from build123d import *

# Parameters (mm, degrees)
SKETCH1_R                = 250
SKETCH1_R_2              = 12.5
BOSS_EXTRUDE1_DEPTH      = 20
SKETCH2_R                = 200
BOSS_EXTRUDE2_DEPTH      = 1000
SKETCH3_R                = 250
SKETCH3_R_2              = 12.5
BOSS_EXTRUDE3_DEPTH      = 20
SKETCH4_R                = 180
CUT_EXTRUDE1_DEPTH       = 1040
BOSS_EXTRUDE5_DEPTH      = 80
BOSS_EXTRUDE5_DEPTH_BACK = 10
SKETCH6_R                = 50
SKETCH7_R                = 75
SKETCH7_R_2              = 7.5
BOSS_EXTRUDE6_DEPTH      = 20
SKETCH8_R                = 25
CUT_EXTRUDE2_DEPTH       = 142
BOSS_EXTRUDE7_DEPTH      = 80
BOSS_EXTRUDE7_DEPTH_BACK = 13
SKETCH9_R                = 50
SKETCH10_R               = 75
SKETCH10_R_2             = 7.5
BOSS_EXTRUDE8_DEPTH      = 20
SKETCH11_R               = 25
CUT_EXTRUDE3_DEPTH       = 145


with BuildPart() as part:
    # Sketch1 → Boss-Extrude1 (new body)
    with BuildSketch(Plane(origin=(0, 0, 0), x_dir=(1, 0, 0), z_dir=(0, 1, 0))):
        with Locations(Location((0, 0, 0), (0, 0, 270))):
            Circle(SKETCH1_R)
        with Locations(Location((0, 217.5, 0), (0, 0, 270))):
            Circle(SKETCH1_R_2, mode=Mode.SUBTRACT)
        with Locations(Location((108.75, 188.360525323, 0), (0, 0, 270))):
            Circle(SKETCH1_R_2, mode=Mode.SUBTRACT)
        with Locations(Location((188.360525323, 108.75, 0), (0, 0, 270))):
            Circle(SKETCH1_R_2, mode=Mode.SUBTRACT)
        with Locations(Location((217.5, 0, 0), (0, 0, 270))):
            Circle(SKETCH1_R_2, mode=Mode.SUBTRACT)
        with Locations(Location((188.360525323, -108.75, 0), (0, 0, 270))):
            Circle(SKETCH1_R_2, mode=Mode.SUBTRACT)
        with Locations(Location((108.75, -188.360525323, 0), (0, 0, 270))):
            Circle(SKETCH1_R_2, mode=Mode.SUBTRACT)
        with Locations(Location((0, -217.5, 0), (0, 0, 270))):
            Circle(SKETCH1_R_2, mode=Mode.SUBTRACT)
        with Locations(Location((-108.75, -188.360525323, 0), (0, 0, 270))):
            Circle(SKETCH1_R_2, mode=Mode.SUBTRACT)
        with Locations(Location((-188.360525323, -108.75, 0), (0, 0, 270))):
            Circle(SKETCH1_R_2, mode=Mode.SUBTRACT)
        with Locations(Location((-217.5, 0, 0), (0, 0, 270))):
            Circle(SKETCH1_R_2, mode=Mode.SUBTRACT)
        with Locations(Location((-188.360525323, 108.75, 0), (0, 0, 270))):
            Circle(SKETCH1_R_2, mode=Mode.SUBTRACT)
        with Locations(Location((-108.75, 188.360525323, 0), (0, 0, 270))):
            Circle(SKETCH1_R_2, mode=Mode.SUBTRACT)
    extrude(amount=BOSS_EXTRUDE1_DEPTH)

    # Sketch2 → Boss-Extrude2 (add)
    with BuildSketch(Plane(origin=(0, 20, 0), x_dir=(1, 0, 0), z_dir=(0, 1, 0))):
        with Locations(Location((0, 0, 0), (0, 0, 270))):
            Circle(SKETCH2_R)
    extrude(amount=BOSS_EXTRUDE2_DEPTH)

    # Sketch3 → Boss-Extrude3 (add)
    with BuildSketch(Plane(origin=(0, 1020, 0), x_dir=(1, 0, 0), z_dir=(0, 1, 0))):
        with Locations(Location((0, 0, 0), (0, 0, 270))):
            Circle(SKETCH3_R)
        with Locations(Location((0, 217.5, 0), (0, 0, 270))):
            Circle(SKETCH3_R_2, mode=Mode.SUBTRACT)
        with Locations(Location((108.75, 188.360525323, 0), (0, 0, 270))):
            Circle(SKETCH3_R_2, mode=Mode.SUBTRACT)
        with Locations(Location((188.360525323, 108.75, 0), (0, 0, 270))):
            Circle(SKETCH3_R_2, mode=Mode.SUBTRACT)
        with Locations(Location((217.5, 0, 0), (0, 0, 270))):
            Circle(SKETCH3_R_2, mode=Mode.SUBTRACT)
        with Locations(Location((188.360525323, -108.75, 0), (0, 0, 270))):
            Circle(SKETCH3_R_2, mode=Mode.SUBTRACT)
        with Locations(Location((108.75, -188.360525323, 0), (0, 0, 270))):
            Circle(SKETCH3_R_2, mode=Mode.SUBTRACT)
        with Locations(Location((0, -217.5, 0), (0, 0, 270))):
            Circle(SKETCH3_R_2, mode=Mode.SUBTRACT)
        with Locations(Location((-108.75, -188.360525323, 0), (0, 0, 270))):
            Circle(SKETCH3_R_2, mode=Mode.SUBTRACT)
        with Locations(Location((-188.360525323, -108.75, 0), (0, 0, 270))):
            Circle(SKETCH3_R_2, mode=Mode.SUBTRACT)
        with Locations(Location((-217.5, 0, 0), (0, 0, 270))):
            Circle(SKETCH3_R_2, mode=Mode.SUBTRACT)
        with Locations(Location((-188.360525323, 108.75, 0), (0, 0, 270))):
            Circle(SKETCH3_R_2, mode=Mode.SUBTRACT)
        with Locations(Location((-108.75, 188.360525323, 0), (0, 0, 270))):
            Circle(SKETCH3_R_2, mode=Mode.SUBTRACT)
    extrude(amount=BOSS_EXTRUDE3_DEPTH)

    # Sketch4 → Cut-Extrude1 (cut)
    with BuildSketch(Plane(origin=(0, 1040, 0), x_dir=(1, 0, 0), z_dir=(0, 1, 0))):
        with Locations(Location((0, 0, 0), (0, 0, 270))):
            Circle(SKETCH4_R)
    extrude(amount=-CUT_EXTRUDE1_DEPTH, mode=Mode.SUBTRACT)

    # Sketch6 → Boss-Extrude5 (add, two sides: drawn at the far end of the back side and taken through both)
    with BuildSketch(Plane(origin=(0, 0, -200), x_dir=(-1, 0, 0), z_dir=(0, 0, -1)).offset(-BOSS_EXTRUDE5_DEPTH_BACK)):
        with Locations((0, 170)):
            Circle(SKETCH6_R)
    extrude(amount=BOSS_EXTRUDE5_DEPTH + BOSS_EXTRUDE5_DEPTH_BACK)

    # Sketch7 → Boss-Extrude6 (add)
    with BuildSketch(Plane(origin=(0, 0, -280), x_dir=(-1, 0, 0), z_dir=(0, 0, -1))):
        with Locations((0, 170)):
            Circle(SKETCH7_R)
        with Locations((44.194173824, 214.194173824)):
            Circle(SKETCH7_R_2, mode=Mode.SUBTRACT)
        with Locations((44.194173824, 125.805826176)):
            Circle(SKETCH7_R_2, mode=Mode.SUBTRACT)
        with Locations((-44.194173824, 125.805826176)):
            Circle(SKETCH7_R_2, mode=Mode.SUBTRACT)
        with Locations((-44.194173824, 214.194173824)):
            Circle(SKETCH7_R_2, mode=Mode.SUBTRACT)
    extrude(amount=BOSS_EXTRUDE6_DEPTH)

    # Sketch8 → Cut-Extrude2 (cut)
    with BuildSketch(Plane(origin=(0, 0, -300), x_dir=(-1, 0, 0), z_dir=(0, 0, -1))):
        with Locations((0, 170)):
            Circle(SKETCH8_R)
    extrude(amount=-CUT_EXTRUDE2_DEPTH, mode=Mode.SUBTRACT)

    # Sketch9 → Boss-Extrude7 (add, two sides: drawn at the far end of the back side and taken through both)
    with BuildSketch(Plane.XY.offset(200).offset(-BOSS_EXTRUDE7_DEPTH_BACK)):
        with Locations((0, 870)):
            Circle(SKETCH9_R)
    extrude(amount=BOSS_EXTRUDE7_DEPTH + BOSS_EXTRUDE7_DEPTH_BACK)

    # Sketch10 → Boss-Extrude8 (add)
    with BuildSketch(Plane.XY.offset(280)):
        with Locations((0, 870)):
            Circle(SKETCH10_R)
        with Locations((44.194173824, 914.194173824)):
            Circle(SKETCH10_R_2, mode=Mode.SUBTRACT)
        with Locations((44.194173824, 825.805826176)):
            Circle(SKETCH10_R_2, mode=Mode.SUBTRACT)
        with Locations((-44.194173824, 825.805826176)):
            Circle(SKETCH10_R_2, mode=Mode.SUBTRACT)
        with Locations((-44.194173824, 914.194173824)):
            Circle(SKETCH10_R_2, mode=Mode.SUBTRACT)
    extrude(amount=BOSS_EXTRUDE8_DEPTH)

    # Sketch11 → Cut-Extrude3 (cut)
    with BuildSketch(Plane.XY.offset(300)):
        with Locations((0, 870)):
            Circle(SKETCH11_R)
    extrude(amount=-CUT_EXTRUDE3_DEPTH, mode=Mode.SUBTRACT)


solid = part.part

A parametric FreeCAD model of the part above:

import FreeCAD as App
import Part
import Sketcher
from FreeCAD import Vector
Q = App.Units.Quantity

doc = App.newDocument("Part")
body = doc.addObject("PartDesign::Body", "Body")

sketch1 = body.newObject("Sketcher::SketchObject", "Sketch")
sketch1.AttachmentSupport = (doc.getObject("XZ_Plane"), [""])
sketch1.MapMode = "FlatFace"
sketch1.addGeometry(Part.Circle(Vector(0, 0, 0), Vector(0, 0, 1), 250), False)
sketch1.addGeometry(Part.Circle(Vector(-188.360525, -108.75, 0), Vector(0, 0, 1), 12.5), False)
sketch1.addGeometry(Part.Circle(Vector(-108.75, -188.360525, 0), Vector(0, 0, 1), 12.5), False)
sketch1.addGeometry(Part.Circle(Vector(0, -217.5, 0), Vector(0, 0, 1), 12.5), False)
sketch1.addGeometry(Part.Circle(Vector(-217.5, 0, 0), Vector(0, 0, 1), 12.5), False)
sketch1.addGeometry(Part.Circle(Vector(-188.360525, 108.75, 0), Vector(0, 0, 1), 12.5), False)
sketch1.addGeometry(Part.Circle(Vector(-108.75, 188.360525, 0), Vector(0, 0, 1), 12.5), False)
sketch1.addGeometry(Part.Circle(Vector(108.75, -188.360525, 0), Vector(0, 0, 1), 12.5), False)
sketch1.addGeometry(Part.Circle(Vector(188.360525, -108.75, 0), Vector(0, 0, 1), 12.5), False)
sketch1.addGeometry(Part.Circle(Vector(217.5, 0, 0), Vector(0, 0, 1), 12.5), False)
sketch1.addGeometry(Part.Circle(Vector(0, 217.5, 0), Vector(0, 0, 1), 12.5), False)
sketch1.addGeometry(Part.Circle(Vector(108.75, 188.360525, 0), Vector(0, 0, 1), 12.5), False)
sketch1.addGeometry(Part.Circle(Vector(188.360525, 108.75, 0), Vector(0, 0, 1), 12.5), False)
sketch1.addConstraint(Sketcher.Constraint("Coincident", 0, 3, -1, 1))
sketch1.addConstraint(Sketcher.Constraint("Equal", 1, 2))
sketch1.addConstraint(Sketcher.Constraint("Equal", 2, 3))
sketch1.addConstraint(Sketcher.Constraint("Equal", 3, 4))
sketch1.addConstraint(Sketcher.Constraint("Equal", 4, 5))
sketch1.addConstraint(Sketcher.Constraint("Equal", 5, 6))
sketch1.addConstraint(Sketcher.Constraint("Equal", 6, 7))
sketch1.addConstraint(Sketcher.Constraint("Equal", 7, 8))
sketch1.addConstraint(Sketcher.Constraint("Equal", 8, 9))
sketch1.addConstraint(Sketcher.Constraint("Equal", 9, 10))
sketch1.addConstraint(Sketcher.Constraint("Equal", 10, 11))
sketch1.addConstraint(Sketcher.Constraint("Equal", 11, 12))
sketch1.addConstraint(Sketcher.Constraint("Symmetric", 6, 3, 7, 3, -1, 1))
sketch1.addConstraint(Sketcher.Constraint("Symmetric", 5, 3, 8, 3, -1, 1))
sketch1.addConstraint(Sketcher.Constraint("Symmetric", 4, 3, 9, 3, -1, 1))
sketch1.addConstraint(Sketcher.Constraint("Symmetric", 3, 3, 10, 3, -1, 1))
sketch1.addConstraint(Sketcher.Constraint("Symmetric", 2, 3, 11, 3, -1, 1))
sketch1.addConstraint(Sketcher.Constraint("Symmetric", 1, 3, 12, 3, -1, 1))
sketch1.addConstraint(Sketcher.Constraint("Symmetric", 2, 3, 7, 3, -2))
sketch1.addConstraint(Sketcher.Constraint("Symmetric", 1, 3, 8, 3, -2))
sketch1.addConstraint(Sketcher.Constraint("PointOnObject", 3, 3, -2))
sketch1.addConstraint(Sketcher.Constraint("PointOnObject", 4, 3, -1))
sketch1.addConstraint(Sketcher.Constraint("Diameter", 0, Q("500 mm")))
sketch1.addConstraint(Sketcher.Constraint("Diameter", 1, Q("25 mm")))
sketch1.addConstraint(Sketcher.Constraint("DistanceY", 3, 3, -1, 1, Q("217.5 mm")))
sketch1.addConstraint(Sketcher.Constraint("DistanceX", 4, 3, -1, 1, Q("217.5 mm")))
sketch1.addConstraint(Sketcher.Constraint("DistanceY", 1, 3, 5, 3, Q("217.5 mm")))
sketch1.addConstraint(Sketcher.Constraint("DistanceX", 2, 3, 7, 3, Q("217.5 mm")))
sketch1.addConstraint(Sketcher.Constraint("DistanceY", 2, 3, 6, 3, Q("376.721051 mm")))
sketch1.addConstraint(Sketcher.Constraint("DistanceX", 1, 3, 8, 3, Q("376.721051 mm")))
pad1 = body.newObject("PartDesign::Pad", "Pad")
pad1.Profile = sketch1
pad1.Length = 20
pad1.Reversed = True

sketch2 = body.newObject("Sketcher::SketchObject", "Sketch001")
sketch2.AttachmentSupport = (doc.getObject("XZ_Plane"), [""])
sketch2.MapMode = "FlatFace"
sketch2.AttachmentOffset = App.Placement(Vector(0, 0, -20), App.Rotation())
sketch2.addGeometry(Part.Circle(Vector(0, 0, 0), Vector(0, 0, 1), 200), False)
sketch2.addConstraint(Sketcher.Constraint("Coincident", 0, 3, -1, 1))
sketch2.addConstraint(Sketcher.Constraint("Diameter", 0, Q("400 mm")))
pad2 = body.newObject("PartDesign::Pad", "Pad001")
pad2.Profile = sketch2
pad2.Length = 1000
pad2.Reversed = True

sketch3 = body.newObject("Sketcher::SketchObject", "Sketch002")
sketch3.AttachmentSupport = (doc.getObject("XZ_Plane"), [""])
sketch3.MapMode = "FlatFace"
sketch3.AttachmentOffset = App.Placement(Vector(0, 0, -1020), App.Rotation())
sketch3.addGeometry(Part.Circle(Vector(0, 0, 0), Vector(0, 0, 1), 250), False)
sketch3.addGeometry(Part.Circle(Vector(-188.360525, -108.75, 0), Vector(0, 0, 1), 12.5), False)
sketch3.addGeometry(Part.Circle(Vector(-108.75, -188.360525, 0), Vector(0, 0, 1), 12.5), False)
sketch3.addGeometry(Part.Circle(Vector(0, -217.5, 0), Vector(0, 0, 1), 12.5), False)
sketch3.addGeometry(Part.Circle(Vector(-217.5, 0, 0), Vector(0, 0, 1), 12.5), False)
sketch3.addGeometry(Part.Circle(Vector(-188.360525, 108.75, 0), Vector(0, 0, 1), 12.5), False)
sketch3.addGeometry(Part.Circle(Vector(-108.75, 188.360525, 0), Vector(0, 0, 1), 12.5), False)
sketch3.addGeometry(Part.Circle(Vector(108.75, -188.360525, 0), Vector(0, 0, 1), 12.5), False)
sketch3.addGeometry(Part.Circle(Vector(188.360525, -108.75, 0), Vector(0, 0, 1), 12.5), False)
sketch3.addGeometry(Part.Circle(Vector(217.5, 0, 0), Vector(0, 0, 1), 12.5), False)
sketch3.addGeometry(Part.Circle(Vector(0, 217.5, 0), Vector(0, 0, 1), 12.5), False)
sketch3.addGeometry(Part.Circle(Vector(108.75, 188.360525, 0), Vector(0, 0, 1), 12.5), False)
sketch3.addGeometry(Part.Circle(Vector(188.360525, 108.75, 0), Vector(0, 0, 1), 12.5), False)
sketch3.addConstraint(Sketcher.Constraint("Coincident", 0, 3, -1, 1))
sketch3.addConstraint(Sketcher.Constraint("Equal", 1, 2))
sketch3.addConstraint(Sketcher.Constraint("Equal", 2, 3))
sketch3.addConstraint(Sketcher.Constraint("Equal", 3, 4))
sketch3.addConstraint(Sketcher.Constraint("Equal", 4, 5))
sketch3.addConstraint(Sketcher.Constraint("Equal", 5, 6))
sketch3.addConstraint(Sketcher.Constraint("Equal", 6, 7))
sketch3.addConstraint(Sketcher.Constraint("Equal", 7, 8))
sketch3.addConstraint(Sketcher.Constraint("Equal", 8, 9))
sketch3.addConstraint(Sketcher.Constraint("Equal", 9, 10))
sketch3.addConstraint(Sketcher.Constraint("Equal", 10, 11))
sketch3.addConstraint(Sketcher.Constraint("Equal", 11, 12))
sketch3.addConstraint(Sketcher.Constraint("Symmetric", 6, 3, 7, 3, -1, 1))
sketch3.addConstraint(Sketcher.Constraint("Symmetric", 5, 3, 8, 3, -1, 1))
sketch3.addConstraint(Sketcher.Constraint("Symmetric", 4, 3, 9, 3, -1, 1))
sketch3.addConstraint(Sketcher.Constraint("Symmetric", 3, 3, 10, 3, -1, 1))
sketch3.addConstraint(Sketcher.Constraint("Symmetric", 2, 3, 11, 3, -1, 1))
sketch3.addConstraint(Sketcher.Constraint("Symmetric", 1, 3, 12, 3, -1, 1))
sketch3.addConstraint(Sketcher.Constraint("Symmetric", 2, 3, 7, 3, -2))
sketch3.addConstraint(Sketcher.Constraint("Symmetric", 1, 3, 8, 3, -2))
sketch3.addConstraint(Sketcher.Constraint("PointOnObject", 3, 3, -2))
sketch3.addConstraint(Sketcher.Constraint("PointOnObject", 4, 3, -1))
sketch3.addConstraint(Sketcher.Constraint("Diameter", 0, Q("500 mm")))
sketch3.addConstraint(Sketcher.Constraint("Diameter", 1, Q("25 mm")))
sketch3.addConstraint(Sketcher.Constraint("DistanceY", 3, 3, -1, 1, Q("217.5 mm")))
sketch3.addConstraint(Sketcher.Constraint("DistanceX", 4, 3, -1, 1, Q("217.5 mm")))
sketch3.addConstraint(Sketcher.Constraint("DistanceY", 1, 3, 5, 3, Q("217.5 mm")))
sketch3.addConstraint(Sketcher.Constraint("DistanceX", 2, 3, 7, 3, Q("217.5 mm")))
sketch3.addConstraint(Sketcher.Constraint("DistanceY", 2, 3, 6, 3, Q("376.721051 mm")))
sketch3.addConstraint(Sketcher.Constraint("DistanceX", 1, 3, 8, 3, Q("376.721051 mm")))
pad3 = body.newObject("PartDesign::Pad", "Pad002")
pad3.Profile = sketch3
pad3.Length = 20
pad3.Reversed = True

sketch4 = body.newObject("Sketcher::SketchObject", "Sketch003")
sketch4.AttachmentSupport = (doc.getObject("XZ_Plane"), [""])
sketch4.MapMode = "FlatFace"
sketch4.AttachmentOffset = App.Placement(Vector(0, 0, -1040), App.Rotation())
sketch4.addGeometry(Part.Circle(Vector(0, 0, 0), Vector(0, 0, 1), 180), False)
sketch4.addConstraint(Sketcher.Constraint("Coincident", 0, 3, -1, 1))
sketch4.addConstraint(Sketcher.Constraint("Diameter", 0, Q("360 mm")))
pocket1 = body.newObject("PartDesign::Pocket", "Pocket")
pocket1.Profile = sketch4
pocket1.Length = 1040
pocket1.Reversed = True

sketch5 = body.newObject("Sketcher::SketchObject", "Sketch004")
sketch5.AttachmentSupport = (doc.getObject("XY_Plane"), [""])
sketch5.MapMode = "FlatFace"
sketch5.AttachmentOffset = App.Placement(Vector(0, 0, -200), App.Rotation())
sketch5.addGeometry(Part.Circle(Vector(0, 170, 0), Vector(0, 0, 1), 50), False)
sketch5.addConstraint(Sketcher.Constraint("PointOnObject", 0, 3, -2))
sketch5.addConstraint(Sketcher.Constraint("Diameter", 0, Q("100 mm")))
sketch5.addConstraint(Sketcher.Constraint("DistanceY", -1, 1, 0, 3, Q("170 mm")))
pad4 = body.newObject("PartDesign::Pad", "Pad003")
pad4.Profile = sketch5
pad4.Type = "TwoLengths"
pad4.Length = 80
pad4.Length2 = 10
pad4.Reversed = True

sketch6 = body.newObject("Sketcher::SketchObject", "Sketch005")
sketch6.AttachmentSupport = (doc.getObject("XY_Plane"), [""])
sketch6.MapMode = "FlatFace"
sketch6.AttachmentOffset = App.Placement(Vector(0, 0, -280), App.Rotation())
sketch6.addGeometry(Part.Circle(Vector(0, 170, 0), Vector(0, 0, 1), 75), False)
sketch6.addGeometry(Part.Circle(Vector(44.194174, 125.805826, 0), Vector(0, 0, 1), 7.5), False)
sketch6.addGeometry(Part.Circle(Vector(-44.194174, 125.805826, 0), Vector(0, 0, 1), 7.5), False)
sketch6.addGeometry(Part.Circle(Vector(44.194174, 214.194174, 0), Vector(0, 0, 1), 7.5), False)
sketch6.addGeometry(Part.Circle(Vector(-44.194174, 214.194174, 0), Vector(0, 0, 1), 7.5), False)
sketch6.addConstraint(Sketcher.Constraint("Equal", 1, 2))
sketch6.addConstraint(Sketcher.Constraint("Equal", 2, 3))
sketch6.addConstraint(Sketcher.Constraint("Equal", 3, 4))
sketch6.addConstraint(Sketcher.Constraint("Symmetric", 1, 3, 2, 3, -2))
sketch6.addConstraint(Sketcher.Constraint("Symmetric", 3, 3, 4, 3, -2))
sketch6.addConstraint(Sketcher.Constraint("PointOnObject", 0, 3, -2))
sketch6.addConstraint(Sketcher.Constraint("Vertical", 1, 3, 3, 3))
sketch6.addConstraint(Sketcher.Constraint("Diameter", 0, Q("150 mm")))
sketch6.addConstraint(Sketcher.Constraint("Diameter", 1, Q("15 mm")))
sketch6.addConstraint(Sketcher.Constraint("DistanceY", -1, 1, 0, 3, Q("170 mm")))
sketch6.addConstraint(Sketcher.Constraint("DistanceX", -1, 1, 1, 3, Q("44.194174 mm")))
sketch6.addConstraint(Sketcher.Constraint("DistanceY", -1, 1, 1, 3, Q("125.805826 mm")))
sketch6.addConstraint(Sketcher.Constraint("DistanceY", -1, 1, 3, 3, Q("214.194174 mm")))
pad5 = body.newObject("PartDesign::Pad", "Pad004")
pad5.Profile = sketch6
pad5.Length = 20
pad5.Reversed = True

sketch7 = body.newObject("Sketcher::SketchObject", "Sketch006")
sketch7.AttachmentSupport = (doc.getObject("XY_Plane"), [""])
sketch7.MapMode = "FlatFace"
sketch7.AttachmentOffset = App.Placement(Vector(0, 0, -300), App.Rotation())
sketch7.addGeometry(Part.Circle(Vector(0, 170, 0), Vector(0, 0, 1), 25), False)
sketch7.addConstraint(Sketcher.Constraint("PointOnObject", 0, 3, -2))
sketch7.addConstraint(Sketcher.Constraint("Diameter", 0, Q("50 mm")))
sketch7.addConstraint(Sketcher.Constraint("DistanceY", -1, 1, 0, 3, Q("170 mm")))
pocket2 = body.newObject("PartDesign::Pocket", "Pocket001")
pocket2.Profile = sketch7
pocket2.Length = 142
pocket2.Reversed = True

sketch8 = body.newObject("Sketcher::SketchObject", "Sketch007")
sketch8.AttachmentSupport = (doc.getObject("XY_Plane"), [""])
sketch8.MapMode = "FlatFace"
sketch8.AttachmentOffset = App.Placement(Vector(0, 0, 200), App.Rotation())
sketch8.addGeometry(Part.Circle(Vector(0, 870, 0), Vector(0, 0, 1), 50), False)
sketch8.addConstraint(Sketcher.Constraint("PointOnObject", 0, 3, -2))
sketch8.addConstraint(Sketcher.Constraint("Diameter", 0, Q("100 mm")))
sketch8.addConstraint(Sketcher.Constraint("DistanceY", -1, 1, 0, 3, Q("870 mm")))
pad6 = body.newObject("PartDesign::Pad", "Pad005")
pad6.Profile = sketch8
pad6.Type = "TwoLengths"
pad6.Length = 80
pad6.Length2 = 13

sketch9 = body.newObject("Sketcher::SketchObject", "Sketch008")
sketch9.AttachmentSupport = (doc.getObject("XY_Plane"), [""])
sketch9.MapMode = "FlatFace"
sketch9.AttachmentOffset = App.Placement(Vector(0, 0, 280), App.Rotation())
sketch9.addGeometry(Part.Circle(Vector(0, 870, 0), Vector(0, 0, 1), 75), False)
sketch9.addGeometry(Part.Circle(Vector(-44.194174, 825.805826, 0), Vector(0, 0, 1), 7.5), False)
sketch9.addGeometry(Part.Circle(Vector(44.194174, 825.805826, 0), Vector(0, 0, 1), 7.5), False)
sketch9.addGeometry(Part.Circle(Vector(-44.194174, 914.194174, 0), Vector(0, 0, 1), 7.5), False)
sketch9.addGeometry(Part.Circle(Vector(44.194174, 914.194174, 0), Vector(0, 0, 1), 7.5), False)
sketch9.addConstraint(Sketcher.Constraint("Equal", 1, 2))
sketch9.addConstraint(Sketcher.Constraint("Equal", 2, 3))
sketch9.addConstraint(Sketcher.Constraint("Equal", 3, 4))
sketch9.addConstraint(Sketcher.Constraint("Symmetric", 1, 3, 2, 3, -2))
sketch9.addConstraint(Sketcher.Constraint("Symmetric", 3, 3, 4, 3, -2))
sketch9.addConstraint(Sketcher.Constraint("PointOnObject", 0, 3, -2))
sketch9.addConstraint(Sketcher.Constraint("Vertical", 1, 3, 3, 3))
sketch9.addConstraint(Sketcher.Constraint("Diameter", 0, Q("150 mm")))
sketch9.addConstraint(Sketcher.Constraint("Diameter", 1, Q("15 mm")))
sketch9.addConstraint(Sketcher.Constraint("DistanceY", -1, 1, 0, 3, Q("870 mm")))
sketch9.addConstraint(Sketcher.Constraint("DistanceX", 1, 3, -1, 1, Q("44.194174 mm")))
sketch9.addConstraint(Sketcher.Constraint("DistanceY", -1, 1, 1, 3, Q("825.805826 mm")))
sketch9.addConstraint(Sketcher.Constraint("DistanceY", -1, 1, 3, 3, Q("914.194174 mm")))
pad7 = body.newObject("PartDesign::Pad", "Pad006")
pad7.Profile = sketch9
pad7.Length = 20

sketch10 = body.newObject("Sketcher::SketchObject", "Sketch009")
sketch10.AttachmentSupport = (doc.getObject("XY_Plane"), [""])
sketch10.MapMode = "FlatFace"
sketch10.AttachmentOffset = App.Placement(Vector(0, 0, 300), App.Rotation())
sketch10.addGeometry(Part.Circle(Vector(0, 870, 0), Vector(0, 0, 1), 25), False)
sketch10.addConstraint(Sketcher.Constraint("PointOnObject", 0, 3, -2))
sketch10.addConstraint(Sketcher.Constraint("Diameter", 0, Q("50 mm")))
sketch10.addConstraint(Sketcher.Constraint("DistanceY", -1, 1, 0, 3, Q("870 mm")))
pocket3 = body.newObject("PartDesign::Pocket", "Pocket002")
pocket3.Profile = sketch10
pocket3.Length = 145

doc.recompute()
